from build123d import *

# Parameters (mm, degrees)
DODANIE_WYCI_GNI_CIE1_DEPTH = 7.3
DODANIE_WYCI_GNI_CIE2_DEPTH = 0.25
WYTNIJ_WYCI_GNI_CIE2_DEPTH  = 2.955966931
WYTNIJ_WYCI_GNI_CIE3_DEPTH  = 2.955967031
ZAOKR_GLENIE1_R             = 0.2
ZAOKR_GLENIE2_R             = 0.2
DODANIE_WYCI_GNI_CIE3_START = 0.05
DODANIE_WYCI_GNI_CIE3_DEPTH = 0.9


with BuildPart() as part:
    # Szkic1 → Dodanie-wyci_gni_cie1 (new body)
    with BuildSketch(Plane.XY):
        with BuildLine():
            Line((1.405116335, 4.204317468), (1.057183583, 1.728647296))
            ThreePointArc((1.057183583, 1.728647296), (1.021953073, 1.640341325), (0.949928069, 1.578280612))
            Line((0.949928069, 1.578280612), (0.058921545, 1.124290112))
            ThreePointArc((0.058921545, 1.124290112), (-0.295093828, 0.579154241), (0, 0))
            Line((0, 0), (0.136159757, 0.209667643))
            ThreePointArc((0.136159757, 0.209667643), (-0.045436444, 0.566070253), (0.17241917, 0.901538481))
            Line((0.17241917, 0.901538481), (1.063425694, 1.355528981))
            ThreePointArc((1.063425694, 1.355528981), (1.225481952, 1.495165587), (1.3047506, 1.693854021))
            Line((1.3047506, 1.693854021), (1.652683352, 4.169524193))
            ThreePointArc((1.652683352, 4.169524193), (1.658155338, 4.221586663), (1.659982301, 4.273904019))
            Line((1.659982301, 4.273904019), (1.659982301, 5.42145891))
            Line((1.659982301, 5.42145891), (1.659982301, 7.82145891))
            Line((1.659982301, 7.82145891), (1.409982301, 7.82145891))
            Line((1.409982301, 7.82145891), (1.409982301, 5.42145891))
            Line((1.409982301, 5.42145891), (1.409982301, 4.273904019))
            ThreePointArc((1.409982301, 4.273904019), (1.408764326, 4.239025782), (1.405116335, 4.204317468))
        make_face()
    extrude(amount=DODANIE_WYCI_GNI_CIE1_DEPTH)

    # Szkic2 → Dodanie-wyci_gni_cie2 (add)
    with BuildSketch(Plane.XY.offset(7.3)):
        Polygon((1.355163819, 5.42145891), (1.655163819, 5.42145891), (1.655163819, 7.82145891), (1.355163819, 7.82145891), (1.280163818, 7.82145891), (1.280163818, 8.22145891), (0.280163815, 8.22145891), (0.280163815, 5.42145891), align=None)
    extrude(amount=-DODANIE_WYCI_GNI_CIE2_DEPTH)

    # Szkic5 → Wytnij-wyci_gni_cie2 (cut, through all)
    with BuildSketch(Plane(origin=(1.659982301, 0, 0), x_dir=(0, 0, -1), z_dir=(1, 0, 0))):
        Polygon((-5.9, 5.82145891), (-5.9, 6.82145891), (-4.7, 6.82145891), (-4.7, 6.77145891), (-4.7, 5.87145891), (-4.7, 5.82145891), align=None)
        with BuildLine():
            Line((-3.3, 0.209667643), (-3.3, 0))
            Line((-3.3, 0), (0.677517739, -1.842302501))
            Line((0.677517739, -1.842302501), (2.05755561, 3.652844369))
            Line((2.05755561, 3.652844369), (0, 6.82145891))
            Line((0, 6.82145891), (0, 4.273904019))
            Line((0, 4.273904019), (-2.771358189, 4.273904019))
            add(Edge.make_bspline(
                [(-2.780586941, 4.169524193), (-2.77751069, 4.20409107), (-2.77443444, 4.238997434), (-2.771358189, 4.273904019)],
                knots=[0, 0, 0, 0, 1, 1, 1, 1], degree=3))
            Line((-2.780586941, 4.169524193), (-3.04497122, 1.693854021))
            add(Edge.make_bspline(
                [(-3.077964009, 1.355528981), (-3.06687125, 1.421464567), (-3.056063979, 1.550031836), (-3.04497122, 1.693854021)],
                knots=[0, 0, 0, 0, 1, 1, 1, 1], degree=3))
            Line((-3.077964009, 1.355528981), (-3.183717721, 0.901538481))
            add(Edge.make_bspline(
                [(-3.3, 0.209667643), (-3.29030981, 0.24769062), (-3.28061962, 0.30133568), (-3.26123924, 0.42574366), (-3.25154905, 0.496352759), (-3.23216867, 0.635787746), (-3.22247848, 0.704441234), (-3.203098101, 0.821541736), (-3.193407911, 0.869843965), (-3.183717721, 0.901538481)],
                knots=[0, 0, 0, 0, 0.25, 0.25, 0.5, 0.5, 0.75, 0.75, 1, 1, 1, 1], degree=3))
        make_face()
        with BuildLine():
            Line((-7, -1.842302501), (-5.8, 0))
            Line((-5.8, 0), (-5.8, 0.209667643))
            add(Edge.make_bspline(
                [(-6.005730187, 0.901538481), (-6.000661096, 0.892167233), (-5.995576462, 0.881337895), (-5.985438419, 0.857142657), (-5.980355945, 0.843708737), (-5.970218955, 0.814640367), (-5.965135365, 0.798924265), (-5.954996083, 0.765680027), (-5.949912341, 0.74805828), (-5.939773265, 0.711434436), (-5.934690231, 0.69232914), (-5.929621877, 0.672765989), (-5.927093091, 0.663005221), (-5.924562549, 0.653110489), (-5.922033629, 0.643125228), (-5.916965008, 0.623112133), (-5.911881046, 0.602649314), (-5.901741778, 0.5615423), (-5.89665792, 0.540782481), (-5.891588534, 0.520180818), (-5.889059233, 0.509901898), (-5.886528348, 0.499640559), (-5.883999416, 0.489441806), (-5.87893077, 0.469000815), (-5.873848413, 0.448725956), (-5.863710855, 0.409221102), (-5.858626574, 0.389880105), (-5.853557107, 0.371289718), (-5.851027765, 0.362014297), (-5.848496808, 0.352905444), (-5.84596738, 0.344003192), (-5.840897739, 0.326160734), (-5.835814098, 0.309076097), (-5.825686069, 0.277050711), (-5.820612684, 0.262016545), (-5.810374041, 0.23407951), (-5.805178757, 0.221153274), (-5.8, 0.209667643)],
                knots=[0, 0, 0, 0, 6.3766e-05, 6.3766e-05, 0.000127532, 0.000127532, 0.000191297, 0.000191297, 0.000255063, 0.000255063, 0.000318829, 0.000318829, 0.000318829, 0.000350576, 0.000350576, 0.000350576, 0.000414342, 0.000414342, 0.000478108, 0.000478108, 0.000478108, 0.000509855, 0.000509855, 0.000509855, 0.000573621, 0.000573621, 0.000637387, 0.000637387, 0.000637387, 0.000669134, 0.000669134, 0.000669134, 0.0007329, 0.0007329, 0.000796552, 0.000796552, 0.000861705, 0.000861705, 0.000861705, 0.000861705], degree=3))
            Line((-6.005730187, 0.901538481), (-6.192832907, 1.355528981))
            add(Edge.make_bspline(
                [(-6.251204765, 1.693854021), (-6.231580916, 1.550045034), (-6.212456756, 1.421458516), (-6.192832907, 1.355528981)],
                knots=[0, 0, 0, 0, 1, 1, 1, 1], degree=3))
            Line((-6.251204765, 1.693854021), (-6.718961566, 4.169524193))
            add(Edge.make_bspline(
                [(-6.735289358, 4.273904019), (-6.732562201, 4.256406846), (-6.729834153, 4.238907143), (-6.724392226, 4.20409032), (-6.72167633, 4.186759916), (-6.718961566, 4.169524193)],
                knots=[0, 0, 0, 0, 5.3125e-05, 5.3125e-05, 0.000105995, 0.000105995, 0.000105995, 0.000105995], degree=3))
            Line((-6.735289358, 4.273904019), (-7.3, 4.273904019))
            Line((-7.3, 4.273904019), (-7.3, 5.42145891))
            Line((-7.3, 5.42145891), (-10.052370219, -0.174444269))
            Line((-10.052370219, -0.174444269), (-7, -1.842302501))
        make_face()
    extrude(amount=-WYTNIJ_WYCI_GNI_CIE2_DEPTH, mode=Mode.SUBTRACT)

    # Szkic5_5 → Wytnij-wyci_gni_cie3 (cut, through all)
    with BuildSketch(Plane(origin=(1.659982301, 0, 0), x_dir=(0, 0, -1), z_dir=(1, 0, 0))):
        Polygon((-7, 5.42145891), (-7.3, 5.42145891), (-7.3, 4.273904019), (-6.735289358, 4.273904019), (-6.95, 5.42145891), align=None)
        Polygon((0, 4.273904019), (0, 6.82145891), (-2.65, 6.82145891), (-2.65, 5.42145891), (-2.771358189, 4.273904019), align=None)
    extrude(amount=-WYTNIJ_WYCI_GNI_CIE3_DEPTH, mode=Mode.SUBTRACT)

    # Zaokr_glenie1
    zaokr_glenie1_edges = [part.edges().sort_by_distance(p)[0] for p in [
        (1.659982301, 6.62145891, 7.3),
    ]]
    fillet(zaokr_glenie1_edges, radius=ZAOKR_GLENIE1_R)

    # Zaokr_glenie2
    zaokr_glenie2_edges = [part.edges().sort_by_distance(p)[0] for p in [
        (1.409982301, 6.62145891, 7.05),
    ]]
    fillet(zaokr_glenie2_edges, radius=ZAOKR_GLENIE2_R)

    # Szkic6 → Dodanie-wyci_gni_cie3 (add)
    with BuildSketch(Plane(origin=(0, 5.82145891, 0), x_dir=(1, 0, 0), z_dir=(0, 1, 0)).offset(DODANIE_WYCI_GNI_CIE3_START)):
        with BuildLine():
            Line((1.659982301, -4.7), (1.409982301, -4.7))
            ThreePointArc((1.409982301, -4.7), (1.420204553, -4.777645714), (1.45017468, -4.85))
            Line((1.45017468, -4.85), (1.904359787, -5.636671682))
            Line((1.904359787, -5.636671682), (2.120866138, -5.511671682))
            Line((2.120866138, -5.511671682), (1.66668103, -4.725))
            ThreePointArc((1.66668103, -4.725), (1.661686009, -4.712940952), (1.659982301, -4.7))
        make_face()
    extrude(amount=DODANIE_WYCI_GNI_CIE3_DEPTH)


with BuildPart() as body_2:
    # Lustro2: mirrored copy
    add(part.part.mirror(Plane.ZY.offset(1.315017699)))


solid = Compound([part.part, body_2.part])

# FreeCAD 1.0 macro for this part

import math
import FreeCAD as App
import Part
import Sketcher
Q = App.Units.Quantity


def edges_at(feature, points):
    """Names of the edges that pass closest to the given points."""
    edges = feature.Shape.Edges
    near = lambda p: min(range(len(edges)), key=lambda i: edges[i].distToShape(Part.Vertex(*p))[0])
    return sorted({f"Edge{near(p) + 1}" for p in points})

doc = App.newDocument("Part")
body = doc.addObject("PartDesign::Body", "Body")

sketch1 = body.newObject("Sketcher::SketchObject", "Sketch")
sketch1.AttachmentSupport = (doc.getObject("XY_Plane"), [""])
sketch1.MapMode = "FlatFace"
sketch1.addGeometry(Part.LineSegment(App.Vector(1.41, 4.2, 0), App.Vector(1.06, 1.73, 0)), False)
sketch1.addGeometry(Part.ArcOfCircle(Part.Circle(App.Vector(0.86, 1.76, 0), App.Vector(0, 0, 1), 0.2), math.radians(-63), math.radians(-8)), False)
sketch1.addGeometry(Part.LineSegment(App.Vector(0.95, 1.58, 0), App.Vector(0.06, 1.12, 0)), False)
sketch1.addGeometry(Part.ArcOfCircle(Part.Circle(App.Vector(0.35, 0.55, 0), App.Vector(0, 0, 1), 0.65), math.radians(117), math.radians(237)), False)
sketch1.addGeometry(Part.LineSegment(App.Vector(0, 0, 0), App.Vector(0.14, 0.21, 0)), False)
sketch1.addGeometry(Part.ArcOfCircle(Part.Circle(App.Vector(0.35, 0.55, 0), App.Vector(0, 0, 1), 0.4), math.radians(117), math.radians(237)), False)
sketch1.addGeometry(Part.LineSegment(App.Vector(0.17, 0.9, 0), App.Vector(1.06, 1.36, 0)), False)
sketch1.addGeometry(Part.ArcOfCircle(Part.Circle(App.Vector(0.86, 1.76, 0), App.Vector(0, 0, 1), 0.45), math.radians(-63), math.radians(-8)), False)
sketch1.addGeometry(Part.LineSegment(App.Vector(1.3, 1.69, 0), App.Vector(1.65, 4.17, 0)), False)
sketch1.addGeometry(Part.ArcOfCircle(Part.Circle(App.Vector(0.91, 4.27, 0), App.Vector(0, 0, 1), 0.75), math.radians(-8), math.radians(0)), False)
sketch1.addGeometry(Part.LineSegment(App.Vector(1.66, 4.27, 0), App.Vector(1.66, 7.82, 0)), False)
sketch1.addGeometry(Part.LineSegment(App.Vector(1.66, 7.82, 0), App.Vector(1.41, 7.82, 0)), False)
sketch1.addGeometry(Part.LineSegment(App.Vector(1.41, 7.82, 0), App.Vector(1.41, 4.27, 0)), False)
sketch1.addGeometry(Part.ArcOfCircle(Part.Circle(App.Vector(0.91, 4.27, 0), App.Vector(0, 0, 1), 0.5), math.radians(-8), math.radians(0)), False)
sketch1.addConstraint(Sketcher.Constraint("Tangent", 0, 2, 1, 2))
sketch1.addConstraint(Sketcher.Constraint("Tangent", 1, 1, 2, 1))
sketch1.addConstraint(Sketcher.Constraint("Tangent", 2, 2, 3, 1))
sketch1.addConstraint(Sketcher.Constraint("Coincident", 3, 2, 4, 1))
sketch1.addConstraint(Sketcher.Constraint("Coincident", 4, 2, 5, 2))
sketch1.addConstraint(Sketcher.Constraint("Tangent", 5, 1, 6, 1))
sketch1.addConstraint(Sketcher.Constraint("Tangent", 6, 2, 7, 1))
sketch1.addConstraint(Sketcher.Constraint("Tangent", 7, 2, 8, 1))
sketch1.addConstraint(Sketcher.Constraint("Tangent", 8, 2, 9, 1))
sketch1.addConstraint(Sketcher.Constraint("Tangent", 9, 2, 10, 1))
sketch1.addConstraint(Sketcher.Constraint("Coincident", 10, 2, 11, 1))
sketch1.addConstraint(Sketcher.Constraint("Coincident", 11, 2, 12, 1))
sketch1.addConstraint(Sketcher.Constraint("Tangent", 12, 2, 13, 2))
sketch1.addConstraint(Sketcher.Constraint("Tangent", 13, 1, 0, 1))
sketch1.addConstraint(Sketcher.Constraint("Vertical", 10))
sketch1.addConstraint(Sketcher.Constraint("Horizontal", 11))
sketch1.addConstraint(Sketcher.Constraint("Vertical", 12))
sketch1.addConstraint(Sketcher.Constraint("Coincident", 3, 2, -1, 1))
sketch1.addConstraint(Sketcher.Constraint("Coincident", 5, 3, 3, 3))
sketch1.addConstraint(Sketcher.Constraint("Coincident", 7, 3, 1, 3))
sketch1.addConstraint(Sketcher.Constraint("Coincident", 13, 3, 9, 3))
sketch1.addConstraint(Sketcher.Constraint("Parallel", 2, 6))
sketch1.addConstraint(Sketcher.Constraint("Parallel", 0, 8))
sketch1.addConstraint(Sketcher.Constraint("Radius", 1, Q("0.2 mm")))
sketch1.addConstraint(Sketcher.Constraint("Radius", 5, Q("0.4 mm")))
sketch1.addConstraint(Sketcher.Constraint("Radius", 13, Q("0.5 mm")))
sketch1.addConstraint(Sketcher.Constraint("Angle", 0, Q("-98 deg")))
sketch1.addConstraint(Sketcher.Constraint("Angle", 2, Q("-153 deg")))
sketch1.addConstraint(Sketcher.Constraint("Angle", 4, Q("57 deg")))
sketch1.addConstraint(Sketcher.Constraint("Radius", 3, Q("0.65 mm")))
sketch1.addConstraint(Sketcher.Constraint("Distance", 2, Q("1 mm")))
sketch1.addConstraint(Sketcher.Constraint("Distance", 0, Q("2.5 mm")))
sketch1.addConstraint(Sketcher.Constraint("DistanceY", 10, 1, 10, 2, Q("3.547555 mm")))
sketch1.addConstraint(Sketcher.Constraint("DistanceX", -1, 1, 1, 3, Q("0.85913 mm")))
pad1 = body.newObject("PartDesign::Pad", "Pad")
pad1.Profile = sketch1
pad1.Length = 7.3

sketch2 = body.newObject("Sketcher::SketchObject", "Sketch001")
sketch2.AttachmentSupport = (doc.getObject("XY_Plane"), [""])
sketch2.MapMode = "FlatFace"
sketch2.AttachmentOffset = App.Placement(App.Vector(0, 0, 7.3), App.Rotation())
sketch2.addGeometry(Part.LineSegment(App.Vector(1.66, 5.42, 0), App.Vector(1.66, 7.82, 0)), False)
sketch2.addGeometry(Part.LineSegment(App.Vector(1.66, 7.82, 0), App.Vector(1.28, 7.82, 0)), False)
sketch2.addGeometry(Part.LineSegment(App.Vector(1.28, 7.82, 0), App.Vector(1.28, 8.22, 0)), False)
sketch2.addGeometry(Part.LineSegment(App.Vector(1.28, 8.22, 0), App.Vector(0.28, 8.22, 0)), False)
sketch2.addGeometry(Part.LineSegment(App.Vector(0.28, 8.22, 0), App.Vector(0.28, 5.42, 0)), False)
sketch2.addGeometry(Part.LineSegment(App.Vector(0.28, 5.42, 0), App.Vector(1.66, 5.42, 0)), False)
sketch2.addConstraint(Sketcher.Constraint("Coincident", 0, 2, 1, 1))
sketch2.addConstraint(Sketcher.Constraint("Coincident", 1, 2, 2, 1))
sketch2.addConstraint(Sketcher.Constraint("Coincident", 2, 2, 3, 1))
sketch2.addConstraint(Sketcher.Constraint("Coincident", 3, 2, 4, 1))
sketch2.addConstraint(Sketcher.Constraint("Coincident", 4, 2, 5, 1))
sketch2.addConstraint(Sketcher.Constraint("Coincident", 5, 2, 0, 1))
sketch2.addConstraint(Sketcher.Constraint("Vertical", 0))
sketch2.addConstraint(Sketcher.Constraint("Horizontal", 1))
sketch2.addConstraint(Sketcher.Constraint("Vertical", 2))
sketch2.addConstraint(Sketcher.Constraint("Horizontal", 3))
sketch2.addConstraint(Sketcher.Constraint("Vertical", 4))
sketch2.addConstraint(Sketcher.Constraint("Horizontal", 5))
sketch2.addConstraint(Sketcher.Constraint("DistanceX", 3, 2, 3, 1, Q("1 mm")))
sketch2.addConstraint(Sketcher.Constraint("DistanceY", 0, 1, 0, 2, Q("2.4 mm")))
sketch2.addConstraint(Sketcher.Constraint("DistanceY", 2, 1, 2, 2, Q("0.4 mm")))
sketch2.addConstraint(Sketcher.Constraint("DistanceX", 1, 2, 1, 1, Q("0.375 mm")))
sketch2.addConstraint(Sketcher.Constraint("DistanceY", -1, 1, 0, 2, Q("7.821459 mm")))
sketch2.addConstraint(Sketcher.Constraint("DistanceX", -1, 1, 0, 2, Q("1.655164 mm")))
pad2 = body.newObject("PartDesign::Pad", "Pad001")
pad2.Profile = sketch2
pad2.Length = 0.25
pad2.Reversed = True

sketch3 = body.newObject("Sketcher::SketchObject", "Sketch002")
sketch3.AttachmentSupport = (doc.getObject("YZ_Plane"), [""])
sketch3.MapMode = "FlatFace"
sketch3.AttachmentOffset = App.Placement(App.Vector(0, 0, 1.659982), App.Rotation())
sketch3.addGeometry(Part.LineSegment(App.Vector(6.821459, 5.9, 0), App.Vector(5.821459, 5.9, 0)), False)
sketch3.addGeometry(Part.LineSegment(App.Vector(5.821459, 5.9, 0), App.Vector(5.821459, 4.7, 0)), False)
sketch3.addGeometry(Part.LineSegment(App.Vector(5.821459, 4.7, 0), App.Vector(6.821459, 4.7, 0)), False)
sketch3.addGeometry(Part.LineSegment(App.Vector(6.821459, 4.7, 0), App.Vector(6.821459, 5.9, 0)), False)
sketch3.addGeometry(Part.LineSegment(App.Vector(0.209668, 3.3, 0), App.Vector(0, 3.3, 0)), False)
sketch3.addGeometry(Part.LineSegment(App.Vector(0, 3.3, 0), App.Vector(-1.842303, -0.677518, 0)), False)
sketch3.addGeometry(Part.LineSegment(App.Vector(-1.842303, -0.677518, 0), App.Vector(3.652844, -2.057556, 0)), False)
sketch3.addGeometry(Part.LineSegment(App.Vector(3.652844, -2.057556, 0), App.Vector(6.821459, 0, 0)), False)
sketch3.addGeometry(Part.LineSegment(App.Vector(6.821459, 0, 0), App.Vector(4.273904, 0, 0)), False)
sketch3.addGeometry(Part.LineSegment(App.Vector(4.273904, 0, 0), App.Vector(4.273904, 2.771358, 0)), False)
sketch3.addGeometry(Part.BSplineCurve([App.Vector(4.169524, 2.780587, 0), App.Vector(4.204091, 2.777511, 0), App.Vector(4.238997, 2.774434, 0), App.Vector(4.273904, 2.771358, 0)], [4, 4], [0, 1], False, 3, [1, 1, 1, 1], False), False)
sketch3.addGeometry(Part.LineSegment(App.Vector(4.169524, 2.780587, 0), App.Vector(1.693854, 3.044971, 0)), False)
sketch3.addGeometry(Part.BSplineCurve([App.Vector(1.355529, 3.077964, 0), App.Vector(1.421465, 3.066871, 0), App.Vector(1.550032, 3.056064, 0), App.Vector(1.693854, 3.044971, 0)], [4, 4], [0, 1], False, 3, [1, 1, 1, 1], False), False)
sketch3.addGeometry(Part.LineSegment(App.Vector(1.355529, 3.077964, 0), App.Vector(0.901538, 3.183718, 0)), False)
sketch3.addGeometry(Part.BSplineCurve([App.Vector(0.209668, 3.3, 0), App.Vector(0.247691, 3.29031, 0), App.Vector(0.301336, 3.28062, 0), App.Vector(0.425744, 3.261239, 0), App.Vector(0.496353, 3.251549, 0), App.Vector(0.635788, 3.232169, 0), App.Vector(0.704441, 3.222478, 0), App.Vector(0.821542, 3.203098, 0), App.Vector(0.869844, 3.193408, 0), App.Vector(0.901538, 3.183718, 0)], [4, 2, 2, 2, 4], [0, 0.25, 0.5, 0.75, 1], False, 3, [1, 1, 1, 1, 1, 1, 1, 1, 1, 1], False), False)
sketch3.addGeometry(Part.LineSegment(App.Vector(-1.842303, 7, 0), App.Vector(0, 5.8, 0)), False)
sketch3.addGeometry(Part.LineSegment(App.Vector(0, 5.8, 0), App.Vector(0.209668, 5.8, 0)), False)
sketch3.addGeometry(Part.BSplineCurve([App.Vector(0.901538, 6.00573, 0), App.Vector(0.892167, 6.000661, 0), App.Vector(0.881338, 5.995576, 0), App.Vector(0.857143, 5.985438, 0), App.Vector(0.843709, 5.980356, 0), App.Vector(0.81464, 5.970219, 0), App.Vector(0.798924, 5.965135, 0), App.Vector(0.76568, 5.954996, 0), App.Vector(0.748058, 5.949912, 0), App.Vector(0.711434, 5.939773, 0), App.Vector(0.692329, 5.93469, 0), App.Vector(0.672766, 5.929622, 0), App.Vector(0.663005, 5.927093, 0), App.Vector(0.65311, 5.924563, 0), App.Vector(0.643125, 5.922034, 0), App.Vector(0.623112, 5.916965, 0), App.Vector(0.602649, 5.911881, 0), App.Vector(0.561542, 5.901742, 0), App.Vector(0.540782, 5.896658, 0), App.Vector(0.520181, 5.891589, 0), App.Vector(0.509902, 5.889059, 0), App.Vector(0.499641, 5.886528, 0), App.Vector(0.489442, 5.883999, 0), App.Vector(0.469001, 5.878931, 0), App.Vector(0.448726, 5.873848, 0), App.Vector(0.409221, 5.863711, 0), App.Vector(0.38988, 5.858627, 0), App.Vector(0.37129, 5.853557, 0), App.Vector(0.362014, 5.851028, 0), App.Vector(0.352905, 5.848497, 0), App.Vector(0.344003, 5.845967, 0), App.Vector(0.326161, 5.840898, 0), App.Vector(0.309076, 5.835814, 0), App.Vector(0.277051, 5.825686, 0), App.Vector(0.262017, 5.820613, 0), App.Vector(0.23408, 5.810374, 0), App.Vector(0.221153, 5.805179, 0), App.Vector(0.209668, 5.8, 0)], [4, 2, 2, 2, 2, 3, 3, 2, 3, 3, 2, 3, 3, 2, 2, 4], [0, 0.000063766, 0.000127532, 0.000191297, 0.000255063, 0.000318829, 0.000350576, 0.000414342, 0.000478108, 0.000509855, 0.000573621, 0.000637387, 0.000669134, 0.0007329, 0.000796552, 0.000861705], False, 3, [1, 1, 1, 1, 1, 1, 1, 1, 1, 1, 1, 1, 1, 1, 1, 1, 1, 1, 1, 1, 1, 1, 1, 1, 1, 1, 1, 1, 1, 1, 1, 1, 1, 1, 1, 1, 1, 1], False), False)
sketch3.addGeometry(Part.LineSegment(App.Vector(0.901538, 6.00573, 0), App.Vector(1.355529, 6.192833, 0)), False)
sketch3.addGeometry(Part.BSplineCurve([App.Vector(1.693854, 6.251205, 0), App.Vector(1.550045, 6.231581, 0), App.Vector(1.421459, 6.212457, 0), App.Vector(1.355529, 6.192833, 0)], [4, 4], [0, 1], False, 3, [1, 1, 1, 1], False), False)
sketch3.addGeometry(Part.LineSegment(App.Vector(1.693854, 6.251205, 0), App.Vector(4.169524, 6.718962, 0)), False)
sketch3.addGeometry(Part.BSplineCurve([App.Vector(4.273904, 6.735289, 0), App.Vector(4.256407, 6.732562, 0), App.Vector(4.238907, 6.729834, 0), App.Vector(4.20409, 6.724392, 0), App.Vector(4.18676, 6.721676, 0), App.Vector(4.169524, 6.718962, 0)], [4, 2, 4], [0, 0.000053125, 0.000105995], False, 3, [1, 1, 1, 1, 1, 1], False), False)
sketch3.addGeometry(Part.LineSegment(App.Vector(4.273904, 6.735289, 0), App.Vector(4.273904, 7.3, 0)), False)
sketch3.addGeometry(Part.LineSegment(App.Vector(4.273904, 7.3, 0), App.Vector(5.421459, 7.3, 0)), False)
sketch3.addGeometry(Part.LineSegment(App.Vector(5.421459, 7.3, 0), App.Vector(-0.174444, 10.05237, 0)), False)
sketch3.addGeometry(Part.LineSegment(App.Vector(-0.174444, 10.05237, 0), App.Vector(-1.842303, 7, 0)), False)
sketch3.addConstraint(Sketcher.Constraint("Block", 10))
sketch3.addConstraint(Sketcher.Constraint("Block", 12))
sketch3.addConstraint(Sketcher.Constraint("Block", 14))
sketch3.addConstraint(Sketcher.Constraint("Block", 17))
sketch3.addConstraint(Sketcher.Constraint("Block", 19))
sketch3.addConstraint(Sketcher.Constraint("Block", 21))
sketch3.addConstraint(Sketcher.Constraint("Coincident", 0, 2, 1, 1))
sketch3.addConstraint(Sketcher.Constraint("Coincident", 1, 2, 2, 1))
sketch3.addConstraint(Sketcher.Constraint("Coincident", 2, 2, 3, 1))
sketch3.addConstraint(Sketcher.Constraint("Coincident", 3, 2, 0, 1))
sketch3.addConstraint(Sketcher.Constraint("Coincident", 4, 2, 5, 1))
sketch3.addConstraint(Sketcher.Constraint("Coincident", 5, 2, 6, 1))
sketch3.addConstraint(Sketcher.Constraint("Coincident", 6, 2, 7, 1))
sketch3.addConstraint(Sketcher.Constraint("Coincident", 7, 2, 8, 1))
sketch3.addConstraint(Sketcher.Constraint("Coincident", 8, 2, 9, 1))
sketch3.addConstraint(Sketcher.Constraint("Coincident", 9, 2, 10, 2))
sketch3.addConstraint(Sketcher.Constraint("Coincident", 10, 1, 11, 1))
sketch3.addConstraint(Sketcher.Constraint("Coincident", 11, 2, 12, 2))
sketch3.addConstraint(Sketcher.Constraint("Coincident", 12, 1, 13, 1))
sketch3.addConstraint(Sketcher.Constraint("Coincident", 13, 2, 14, 2))
sketch3.addConstraint(Sketcher.Constraint("Coincident", 14, 1, 4, 1))
sketch3.addConstraint(Sketcher.Constraint("Coincident", 15, 2, 16, 1))
sketch3.addConstraint(Sketcher.Constraint("Coincident", 16, 2, 17, 2))
sketch3.addConstraint(Sketcher.Constraint("Coincident", 17, 1, 18, 1))
sketch3.addConstraint(Sketcher.Constraint("Coincident", 18, 2, 19, 2))
sketch3.addConstraint(Sketcher.Constraint("Coincident", 19, 1, 20, 1))
sketch3.addConstraint(Sketcher.Constraint("Coincident", 20, 2, 21, 2))
sketch3.addConstraint(Sketcher.Constraint("Coincident", 21, 1, 22, 1))
sketch3.addConstraint(Sketcher.Constraint("Coincident", 22, 2, 23, 1))
sketch3.addConstraint(Sketcher.Constraint("Coincident", 23, 2, 24, 1))
sketch3.addConstraint(Sketcher.Constraint("Coincident", 24, 2, 25, 1))
sketch3.addConstraint(Sketcher.Constraint("Coincident", 25, 2, 15, 1))
sketch3.addConstraint(Sketcher.Constraint("Horizontal", 0))
sketch3.addConstraint(Sketcher.Constraint("Vertical", 1))
sketch3.addConstraint(Sketcher.Constraint("Horizontal", 2))
sketch3.addConstraint(Sketcher.Constraint("Vertical", 3))
sketch3.addConstraint(Sketcher.Constraint("Horizontal", 4))
sketch3.addConstraint(Sketcher.Constraint("Horizontal", 8))
sketch3.addConstraint(Sketcher.Constraint("Vertical", 9))
sketch3.addConstraint(Sketcher.Constraint("Horizontal", 16))
sketch3.addConstraint(Sketcher.Constraint("Vertical", 22))
sketch3.addConstraint(Sketcher.Constraint("Horizontal", 23))
sketch3.addConstraint(Sketcher.Constraint("PointOnObject", 4, 2, -2))
sketch3.addConstraint(Sketcher.Constraint("PointOnObject", 7, 2, -1))
sketch3.addConstraint(Sketcher.Constraint("PointOnObject", 15, 2, -2))
sketch3.addConstraint(Sketcher.Constraint("Vertical", 3, 2, 7, 2))
sketch3.addConstraint(Sketcher.Constraint("Vertical", 5, 2, 25, 2))
sketch3.addConstraint(Sketcher.Constraint("DistanceX", 0, 2, 0, 1, Q("1 mm")))
sketch3.addConstraint(Sketcher.Constraint("DistanceY", 1, 2, 1, 1, Q("1.2 mm")))
sketch3.addConstraint(Sketcher.Constraint("DistanceY", -1, 1, 25, 2, Q("7 mm")))
sketch3.addConstraint(Sketcher.Constraint("DistanceY", -1, 1, 0, 2, Q("5.9 mm")))
sketch3.addConstraint(Sketcher.Constraint("DistanceY", -1, 1, 22, 2, Q("7.3 mm")))
sketch3.addConstraint(Sketcher.Constraint("DistanceX", 23, 2, 0, 2, Q("0.4 mm")))
sketch3.addConstraint(Sketcher.Constraint("Distance", 5, Q("4.38346 mm")))
sketch3.addConstraint(Sketcher.Constraint("Distance", 7, Q("3.778049 mm")))
sketch3.addConstraint(Sketcher.Constraint("Distance", 24, Q("6.236159 mm")))
sketch3.addConstraint(Sketcher.Constraint("Distance", 25, Q("3.478321 mm")))
sketch3.addConstraint(Sketcher.Constraint("DistanceX", 8, 2, 8, 1, Q("2.547555 mm")))
sketch3.addConstraint(Sketcher.Constraint("DistanceY", -1, 1, 24, 2, Q("10.05237 mm")))
sketch3.addConstraint(Sketcher.Constraint("DistanceX", 6, 2, 8, 2, Q("0.62106 mm")))
pocket1 = body.newObject("PartDesign::Pocket", "Pocket")
pocket1.Profile = sketch3
pocket1.Type = "ThroughAll"

sketch4 = body.newObject("Sketcher::SketchObject", "Sketch003")
sketch4.AttachmentSupport = (doc.getObject("YZ_Plane"), [""])
sketch4.MapMode = "FlatFace"
sketch4.AttachmentOffset = App.Placement(App.Vector(0, 0, 1.659982), App.Rotation())
sketch4.addGeometry(Part.LineSegment(App.Vector(5.42, 7.3, 0), App.Vector(4.27, 7.3, 0)), False)
sketch4.addGeometry(Part.LineSegment(App.Vector(4.27, 7.3, 0), App.Vector(4.27, 6.74, 0)), False)
sketch4.addGeometry(Part.LineSegment(App.Vector(4.27, 6.74, 0), App.Vector(5.42, 6.95, 0)), False)
sketch4.addGeometry(Part.LineSegment(App.Vector(5.42, 6.95, 0), App.Vector(5.42, 7.3, 0)), False)
sketch4.addGeometry(Part.LineSegment(App.Vector(4.27, 0, 0), App.Vector(6.82, 0, 0)), False)
sketch4.addGeometry(Part.LineSegment(App.Vector(6.82, 0, 0), App.Vector(6.82, 2.65, 0)), False)
sketch4.addGeometry(Part.LineSegment(App.Vector(6.82, 2.65, 0), App.Vector(5.42, 2.65, 0)), False)
sketch4.addGeometry(Part.LineSegment(App.Vector(5.42, 2.65, 0), App.Vector(4.27, 2.77, 0)), False)
sketch4.addGeometry(Part.LineSegment(App.Vector(4.27, 2.77, 0), App.Vector(4.27, 0, 0)), False)
sketch4.addConstraint(Sketcher.Constraint("Coincident", 0, 2, 1, 1))
sketch4.addConstraint(Sketcher.Constraint("Coincident", 1, 2, 2, 1))
sketch4.addConstraint(Sketcher.Constraint("Coincident", 2, 2, 3, 1))
sketch4.addConstraint(Sketcher.Constraint("Coincident", 3, 2, 0, 1))
sketch4.addConstraint(Sketcher.Constraint("Coincident", 4, 2, 5, 1))
sketch4.addConstraint(Sketcher.Constraint("Coincident", 5, 2, 6, 1))
sketch4.addConstraint(Sketcher.Constraint("Coincident", 6, 2, 7, 1))
sketch4.addConstraint(Sketcher.Constraint("Coincident", 7, 2, 8, 1))
sketch4.addConstraint(Sketcher.Constraint("Coincident", 8, 2, 4, 1))
sketch4.addConstraint(Sketcher.Constraint("Horizontal", 0))
sketch4.addConstraint(Sketcher.Constraint("Vertical", 1))
sketch4.addConstraint(Sketcher.Constraint("Vertical", 3))
sketch4.addConstraint(Sketcher.Constraint("Horizontal", 4))
sketch4.addConstraint(Sketcher.Constraint("Vertical", 5))
sketch4.addConstraint(Sketcher.Constraint("Horizontal", 6))
sketch4.addConstraint(Sketcher.Constraint("Vertical", 8))
sketch4.addConstraint(Sketcher.Constraint("PointOnObject", 4, 2, -1))
sketch4.addConstraint(Sketcher.Constraint("Vertical", 3, 2, 6, 2))
sketch4.addConstraint(Sketcher.Constraint("Vertical", 1, 2, 7, 2))
sketch4.addConstraint(Sketcher.Constraint("DistanceX", 6, 2, 6, 1, Q("1.4 mm")))
sketch4.addConstraint(Sketcher.Constraint("DistanceY", 3, 1, 3, 2, Q("0.35 mm")))
sketch4.addConstraint(Sketcher.Constraint("DistanceY", 5, 1, 5, 2, Q("2.65 mm")))
sketch4.addConstraint(Sketcher.Constraint("DistanceY", -1, 1, 0, 2, Q("7.3 mm")))
sketch4.addConstraint(Sketcher.Constraint("DistanceY", 1, 2, 1, 1, Q("0.564711 mm")))
sketch4.addConstraint(Sketcher.Constraint("DistanceY", 8, 2, 8, 1, Q("2.771358 mm")))
sketch4.addConstraint(Sketcher.Constraint("Distance", 2, Q("1.167469 mm")))
sketch4.addConstraint(Sketcher.Constraint("DistanceX", -1, 1, 2, 2, Q("5.421459 mm")))
pocket2 = body.newObject("PartDesign::Pocket", "Pocket001")
pocket2.Profile = sketch4
pocket2.Type = "ThroughAll"
doc.recompute()

fillet = body.newObject("PartDesign::Fillet", "Fillet")
fillet.Base = (pocket2, edges_at(pocket2, [(1.66, 6.621, 7.3)]))
fillet.Radius = 0.2
doc.recompute()

fillet2 = body.newObject("PartDesign::Fillet", "Fillet001")
fillet2.Base = (fillet, edges_at(fillet, [(1.41, 6.621, 7.05)]))
fillet2.Radius = 0.2

sketch5 = body.newObject("Sketcher::SketchObject", "Sketch004")
sketch5.AttachmentSupport = (doc.getObject("XZ_Plane"), [""])
sketch5.MapMode = "FlatFace"
sketch5.AttachmentOffset = App.Placement(App.Vector(0, 0, -5.871459), App.Rotation())
sketch5.addGeometry(Part.LineSegment(App.Vector(1.66, 4.7, 0), App.Vector(1.41, 4.7, 0)), False)
sketch5.addGeometry(Part.ArcOfCircle(Part.Circle(App.Vector(1.71, 4.7, 0), App.Vector(0, 0, 1), 0.3), math.radians(150), math.radians(180)), False)
sketch5.addGeometry(Part.LineSegment(App.Vector(1.45, 4.85, 0), App.Vector(1.904, 5.637, 0)), False)
sketch5.addGeometry(Part.LineSegment(App.Vector(1.904, 5.637, 0), App.Vector(2.121, 5.512, 0)), False)
sketch5.addGeometry(Part.LineSegment(App.Vector(2.121, 5.512, 0), App.Vector(1.667, 4.725, 0)), False)
sketch5.addGeometry(Part.ArcOfCircle(Part.Circle(App.Vector(1.71, 4.7, 0), App.Vector(0, 0, 1), 0.05), math.radians(150), math.radians(180)), False)
sketch5.addConstraint(Sketcher.Constraint("Coincident", 0, 2, 1, 2))
sketch5.addConstraint(Sketcher.Constraint("Tangent", 1, 1, 2, 1))
sketch5.addConstraint(Sketcher.Constraint("Coincident", 2, 2, 3, 1))
sketch5.addConstraint(Sketcher.Constraint("Coincident", 3, 2, 4, 1))
sketch5.addConstraint(Sketcher.Constraint("Tangent", 4, 2, 5, 1))
sketch5.addConstraint(Sketcher.Constraint("Coincident", 5, 2, 0, 1))
sketch5.addConstraint(Sketcher.Constraint("Horizontal", 0))
sketch5.addConstraint(Sketcher.Constraint("Coincident", 5, 3, 1, 3))
sketch5.addConstraint(Sketcher.Constraint("Perpendicular", 2, 3))
sketch5.addConstraint(Sketcher.Constraint("Perpendicular", 3, 4))
sketch5.addConstraint(Sketcher.Constraint("Horizontal", 5, 3, 0, 2))
sketch5.addConstraint(Sketcher.Constraint("Radius", 1, Q("0.3 mm")))
sketch5.addConstraint(Sketcher.Constraint("Angle", 2, Q("60 deg")))
sketch5.addConstraint(Sketcher.Constraint("Radius", 5, Q("0.05 mm")))
sketch5.addConstraint(Sketcher.Constraint("DistanceY", -1, 1, 1, 3, Q("4.7 mm")))
sketch5.addConstraint(Sketcher.Constraint("Distance", 2, Q("0.90837 mm")))
sketch5.addConstraint(Sketcher.Constraint("DistanceX", -1, 1, 2, 2, Q("1.90436 mm")))
pad3 = body.newObject("PartDesign::Pad", "Pad002")
pad3.Profile = sketch5
pad3.Length = 0.9
pad3.Reversed = True
body2 = doc.addObject("PartDesign::Body", "Body001")
doc.recompute()

mirroring = doc.addObject("Part::Mirroring", "Mirroring")
mirroring.Source = body
mirroring.Base = App.Vector(-1.315018, 0, 0)
mirroring.Normal = App.Vector(-1, 0, 0)
body2.BaseFeature = mirroring
doc.recompute()
mirroring.Visibility = False

doc.recompute()
